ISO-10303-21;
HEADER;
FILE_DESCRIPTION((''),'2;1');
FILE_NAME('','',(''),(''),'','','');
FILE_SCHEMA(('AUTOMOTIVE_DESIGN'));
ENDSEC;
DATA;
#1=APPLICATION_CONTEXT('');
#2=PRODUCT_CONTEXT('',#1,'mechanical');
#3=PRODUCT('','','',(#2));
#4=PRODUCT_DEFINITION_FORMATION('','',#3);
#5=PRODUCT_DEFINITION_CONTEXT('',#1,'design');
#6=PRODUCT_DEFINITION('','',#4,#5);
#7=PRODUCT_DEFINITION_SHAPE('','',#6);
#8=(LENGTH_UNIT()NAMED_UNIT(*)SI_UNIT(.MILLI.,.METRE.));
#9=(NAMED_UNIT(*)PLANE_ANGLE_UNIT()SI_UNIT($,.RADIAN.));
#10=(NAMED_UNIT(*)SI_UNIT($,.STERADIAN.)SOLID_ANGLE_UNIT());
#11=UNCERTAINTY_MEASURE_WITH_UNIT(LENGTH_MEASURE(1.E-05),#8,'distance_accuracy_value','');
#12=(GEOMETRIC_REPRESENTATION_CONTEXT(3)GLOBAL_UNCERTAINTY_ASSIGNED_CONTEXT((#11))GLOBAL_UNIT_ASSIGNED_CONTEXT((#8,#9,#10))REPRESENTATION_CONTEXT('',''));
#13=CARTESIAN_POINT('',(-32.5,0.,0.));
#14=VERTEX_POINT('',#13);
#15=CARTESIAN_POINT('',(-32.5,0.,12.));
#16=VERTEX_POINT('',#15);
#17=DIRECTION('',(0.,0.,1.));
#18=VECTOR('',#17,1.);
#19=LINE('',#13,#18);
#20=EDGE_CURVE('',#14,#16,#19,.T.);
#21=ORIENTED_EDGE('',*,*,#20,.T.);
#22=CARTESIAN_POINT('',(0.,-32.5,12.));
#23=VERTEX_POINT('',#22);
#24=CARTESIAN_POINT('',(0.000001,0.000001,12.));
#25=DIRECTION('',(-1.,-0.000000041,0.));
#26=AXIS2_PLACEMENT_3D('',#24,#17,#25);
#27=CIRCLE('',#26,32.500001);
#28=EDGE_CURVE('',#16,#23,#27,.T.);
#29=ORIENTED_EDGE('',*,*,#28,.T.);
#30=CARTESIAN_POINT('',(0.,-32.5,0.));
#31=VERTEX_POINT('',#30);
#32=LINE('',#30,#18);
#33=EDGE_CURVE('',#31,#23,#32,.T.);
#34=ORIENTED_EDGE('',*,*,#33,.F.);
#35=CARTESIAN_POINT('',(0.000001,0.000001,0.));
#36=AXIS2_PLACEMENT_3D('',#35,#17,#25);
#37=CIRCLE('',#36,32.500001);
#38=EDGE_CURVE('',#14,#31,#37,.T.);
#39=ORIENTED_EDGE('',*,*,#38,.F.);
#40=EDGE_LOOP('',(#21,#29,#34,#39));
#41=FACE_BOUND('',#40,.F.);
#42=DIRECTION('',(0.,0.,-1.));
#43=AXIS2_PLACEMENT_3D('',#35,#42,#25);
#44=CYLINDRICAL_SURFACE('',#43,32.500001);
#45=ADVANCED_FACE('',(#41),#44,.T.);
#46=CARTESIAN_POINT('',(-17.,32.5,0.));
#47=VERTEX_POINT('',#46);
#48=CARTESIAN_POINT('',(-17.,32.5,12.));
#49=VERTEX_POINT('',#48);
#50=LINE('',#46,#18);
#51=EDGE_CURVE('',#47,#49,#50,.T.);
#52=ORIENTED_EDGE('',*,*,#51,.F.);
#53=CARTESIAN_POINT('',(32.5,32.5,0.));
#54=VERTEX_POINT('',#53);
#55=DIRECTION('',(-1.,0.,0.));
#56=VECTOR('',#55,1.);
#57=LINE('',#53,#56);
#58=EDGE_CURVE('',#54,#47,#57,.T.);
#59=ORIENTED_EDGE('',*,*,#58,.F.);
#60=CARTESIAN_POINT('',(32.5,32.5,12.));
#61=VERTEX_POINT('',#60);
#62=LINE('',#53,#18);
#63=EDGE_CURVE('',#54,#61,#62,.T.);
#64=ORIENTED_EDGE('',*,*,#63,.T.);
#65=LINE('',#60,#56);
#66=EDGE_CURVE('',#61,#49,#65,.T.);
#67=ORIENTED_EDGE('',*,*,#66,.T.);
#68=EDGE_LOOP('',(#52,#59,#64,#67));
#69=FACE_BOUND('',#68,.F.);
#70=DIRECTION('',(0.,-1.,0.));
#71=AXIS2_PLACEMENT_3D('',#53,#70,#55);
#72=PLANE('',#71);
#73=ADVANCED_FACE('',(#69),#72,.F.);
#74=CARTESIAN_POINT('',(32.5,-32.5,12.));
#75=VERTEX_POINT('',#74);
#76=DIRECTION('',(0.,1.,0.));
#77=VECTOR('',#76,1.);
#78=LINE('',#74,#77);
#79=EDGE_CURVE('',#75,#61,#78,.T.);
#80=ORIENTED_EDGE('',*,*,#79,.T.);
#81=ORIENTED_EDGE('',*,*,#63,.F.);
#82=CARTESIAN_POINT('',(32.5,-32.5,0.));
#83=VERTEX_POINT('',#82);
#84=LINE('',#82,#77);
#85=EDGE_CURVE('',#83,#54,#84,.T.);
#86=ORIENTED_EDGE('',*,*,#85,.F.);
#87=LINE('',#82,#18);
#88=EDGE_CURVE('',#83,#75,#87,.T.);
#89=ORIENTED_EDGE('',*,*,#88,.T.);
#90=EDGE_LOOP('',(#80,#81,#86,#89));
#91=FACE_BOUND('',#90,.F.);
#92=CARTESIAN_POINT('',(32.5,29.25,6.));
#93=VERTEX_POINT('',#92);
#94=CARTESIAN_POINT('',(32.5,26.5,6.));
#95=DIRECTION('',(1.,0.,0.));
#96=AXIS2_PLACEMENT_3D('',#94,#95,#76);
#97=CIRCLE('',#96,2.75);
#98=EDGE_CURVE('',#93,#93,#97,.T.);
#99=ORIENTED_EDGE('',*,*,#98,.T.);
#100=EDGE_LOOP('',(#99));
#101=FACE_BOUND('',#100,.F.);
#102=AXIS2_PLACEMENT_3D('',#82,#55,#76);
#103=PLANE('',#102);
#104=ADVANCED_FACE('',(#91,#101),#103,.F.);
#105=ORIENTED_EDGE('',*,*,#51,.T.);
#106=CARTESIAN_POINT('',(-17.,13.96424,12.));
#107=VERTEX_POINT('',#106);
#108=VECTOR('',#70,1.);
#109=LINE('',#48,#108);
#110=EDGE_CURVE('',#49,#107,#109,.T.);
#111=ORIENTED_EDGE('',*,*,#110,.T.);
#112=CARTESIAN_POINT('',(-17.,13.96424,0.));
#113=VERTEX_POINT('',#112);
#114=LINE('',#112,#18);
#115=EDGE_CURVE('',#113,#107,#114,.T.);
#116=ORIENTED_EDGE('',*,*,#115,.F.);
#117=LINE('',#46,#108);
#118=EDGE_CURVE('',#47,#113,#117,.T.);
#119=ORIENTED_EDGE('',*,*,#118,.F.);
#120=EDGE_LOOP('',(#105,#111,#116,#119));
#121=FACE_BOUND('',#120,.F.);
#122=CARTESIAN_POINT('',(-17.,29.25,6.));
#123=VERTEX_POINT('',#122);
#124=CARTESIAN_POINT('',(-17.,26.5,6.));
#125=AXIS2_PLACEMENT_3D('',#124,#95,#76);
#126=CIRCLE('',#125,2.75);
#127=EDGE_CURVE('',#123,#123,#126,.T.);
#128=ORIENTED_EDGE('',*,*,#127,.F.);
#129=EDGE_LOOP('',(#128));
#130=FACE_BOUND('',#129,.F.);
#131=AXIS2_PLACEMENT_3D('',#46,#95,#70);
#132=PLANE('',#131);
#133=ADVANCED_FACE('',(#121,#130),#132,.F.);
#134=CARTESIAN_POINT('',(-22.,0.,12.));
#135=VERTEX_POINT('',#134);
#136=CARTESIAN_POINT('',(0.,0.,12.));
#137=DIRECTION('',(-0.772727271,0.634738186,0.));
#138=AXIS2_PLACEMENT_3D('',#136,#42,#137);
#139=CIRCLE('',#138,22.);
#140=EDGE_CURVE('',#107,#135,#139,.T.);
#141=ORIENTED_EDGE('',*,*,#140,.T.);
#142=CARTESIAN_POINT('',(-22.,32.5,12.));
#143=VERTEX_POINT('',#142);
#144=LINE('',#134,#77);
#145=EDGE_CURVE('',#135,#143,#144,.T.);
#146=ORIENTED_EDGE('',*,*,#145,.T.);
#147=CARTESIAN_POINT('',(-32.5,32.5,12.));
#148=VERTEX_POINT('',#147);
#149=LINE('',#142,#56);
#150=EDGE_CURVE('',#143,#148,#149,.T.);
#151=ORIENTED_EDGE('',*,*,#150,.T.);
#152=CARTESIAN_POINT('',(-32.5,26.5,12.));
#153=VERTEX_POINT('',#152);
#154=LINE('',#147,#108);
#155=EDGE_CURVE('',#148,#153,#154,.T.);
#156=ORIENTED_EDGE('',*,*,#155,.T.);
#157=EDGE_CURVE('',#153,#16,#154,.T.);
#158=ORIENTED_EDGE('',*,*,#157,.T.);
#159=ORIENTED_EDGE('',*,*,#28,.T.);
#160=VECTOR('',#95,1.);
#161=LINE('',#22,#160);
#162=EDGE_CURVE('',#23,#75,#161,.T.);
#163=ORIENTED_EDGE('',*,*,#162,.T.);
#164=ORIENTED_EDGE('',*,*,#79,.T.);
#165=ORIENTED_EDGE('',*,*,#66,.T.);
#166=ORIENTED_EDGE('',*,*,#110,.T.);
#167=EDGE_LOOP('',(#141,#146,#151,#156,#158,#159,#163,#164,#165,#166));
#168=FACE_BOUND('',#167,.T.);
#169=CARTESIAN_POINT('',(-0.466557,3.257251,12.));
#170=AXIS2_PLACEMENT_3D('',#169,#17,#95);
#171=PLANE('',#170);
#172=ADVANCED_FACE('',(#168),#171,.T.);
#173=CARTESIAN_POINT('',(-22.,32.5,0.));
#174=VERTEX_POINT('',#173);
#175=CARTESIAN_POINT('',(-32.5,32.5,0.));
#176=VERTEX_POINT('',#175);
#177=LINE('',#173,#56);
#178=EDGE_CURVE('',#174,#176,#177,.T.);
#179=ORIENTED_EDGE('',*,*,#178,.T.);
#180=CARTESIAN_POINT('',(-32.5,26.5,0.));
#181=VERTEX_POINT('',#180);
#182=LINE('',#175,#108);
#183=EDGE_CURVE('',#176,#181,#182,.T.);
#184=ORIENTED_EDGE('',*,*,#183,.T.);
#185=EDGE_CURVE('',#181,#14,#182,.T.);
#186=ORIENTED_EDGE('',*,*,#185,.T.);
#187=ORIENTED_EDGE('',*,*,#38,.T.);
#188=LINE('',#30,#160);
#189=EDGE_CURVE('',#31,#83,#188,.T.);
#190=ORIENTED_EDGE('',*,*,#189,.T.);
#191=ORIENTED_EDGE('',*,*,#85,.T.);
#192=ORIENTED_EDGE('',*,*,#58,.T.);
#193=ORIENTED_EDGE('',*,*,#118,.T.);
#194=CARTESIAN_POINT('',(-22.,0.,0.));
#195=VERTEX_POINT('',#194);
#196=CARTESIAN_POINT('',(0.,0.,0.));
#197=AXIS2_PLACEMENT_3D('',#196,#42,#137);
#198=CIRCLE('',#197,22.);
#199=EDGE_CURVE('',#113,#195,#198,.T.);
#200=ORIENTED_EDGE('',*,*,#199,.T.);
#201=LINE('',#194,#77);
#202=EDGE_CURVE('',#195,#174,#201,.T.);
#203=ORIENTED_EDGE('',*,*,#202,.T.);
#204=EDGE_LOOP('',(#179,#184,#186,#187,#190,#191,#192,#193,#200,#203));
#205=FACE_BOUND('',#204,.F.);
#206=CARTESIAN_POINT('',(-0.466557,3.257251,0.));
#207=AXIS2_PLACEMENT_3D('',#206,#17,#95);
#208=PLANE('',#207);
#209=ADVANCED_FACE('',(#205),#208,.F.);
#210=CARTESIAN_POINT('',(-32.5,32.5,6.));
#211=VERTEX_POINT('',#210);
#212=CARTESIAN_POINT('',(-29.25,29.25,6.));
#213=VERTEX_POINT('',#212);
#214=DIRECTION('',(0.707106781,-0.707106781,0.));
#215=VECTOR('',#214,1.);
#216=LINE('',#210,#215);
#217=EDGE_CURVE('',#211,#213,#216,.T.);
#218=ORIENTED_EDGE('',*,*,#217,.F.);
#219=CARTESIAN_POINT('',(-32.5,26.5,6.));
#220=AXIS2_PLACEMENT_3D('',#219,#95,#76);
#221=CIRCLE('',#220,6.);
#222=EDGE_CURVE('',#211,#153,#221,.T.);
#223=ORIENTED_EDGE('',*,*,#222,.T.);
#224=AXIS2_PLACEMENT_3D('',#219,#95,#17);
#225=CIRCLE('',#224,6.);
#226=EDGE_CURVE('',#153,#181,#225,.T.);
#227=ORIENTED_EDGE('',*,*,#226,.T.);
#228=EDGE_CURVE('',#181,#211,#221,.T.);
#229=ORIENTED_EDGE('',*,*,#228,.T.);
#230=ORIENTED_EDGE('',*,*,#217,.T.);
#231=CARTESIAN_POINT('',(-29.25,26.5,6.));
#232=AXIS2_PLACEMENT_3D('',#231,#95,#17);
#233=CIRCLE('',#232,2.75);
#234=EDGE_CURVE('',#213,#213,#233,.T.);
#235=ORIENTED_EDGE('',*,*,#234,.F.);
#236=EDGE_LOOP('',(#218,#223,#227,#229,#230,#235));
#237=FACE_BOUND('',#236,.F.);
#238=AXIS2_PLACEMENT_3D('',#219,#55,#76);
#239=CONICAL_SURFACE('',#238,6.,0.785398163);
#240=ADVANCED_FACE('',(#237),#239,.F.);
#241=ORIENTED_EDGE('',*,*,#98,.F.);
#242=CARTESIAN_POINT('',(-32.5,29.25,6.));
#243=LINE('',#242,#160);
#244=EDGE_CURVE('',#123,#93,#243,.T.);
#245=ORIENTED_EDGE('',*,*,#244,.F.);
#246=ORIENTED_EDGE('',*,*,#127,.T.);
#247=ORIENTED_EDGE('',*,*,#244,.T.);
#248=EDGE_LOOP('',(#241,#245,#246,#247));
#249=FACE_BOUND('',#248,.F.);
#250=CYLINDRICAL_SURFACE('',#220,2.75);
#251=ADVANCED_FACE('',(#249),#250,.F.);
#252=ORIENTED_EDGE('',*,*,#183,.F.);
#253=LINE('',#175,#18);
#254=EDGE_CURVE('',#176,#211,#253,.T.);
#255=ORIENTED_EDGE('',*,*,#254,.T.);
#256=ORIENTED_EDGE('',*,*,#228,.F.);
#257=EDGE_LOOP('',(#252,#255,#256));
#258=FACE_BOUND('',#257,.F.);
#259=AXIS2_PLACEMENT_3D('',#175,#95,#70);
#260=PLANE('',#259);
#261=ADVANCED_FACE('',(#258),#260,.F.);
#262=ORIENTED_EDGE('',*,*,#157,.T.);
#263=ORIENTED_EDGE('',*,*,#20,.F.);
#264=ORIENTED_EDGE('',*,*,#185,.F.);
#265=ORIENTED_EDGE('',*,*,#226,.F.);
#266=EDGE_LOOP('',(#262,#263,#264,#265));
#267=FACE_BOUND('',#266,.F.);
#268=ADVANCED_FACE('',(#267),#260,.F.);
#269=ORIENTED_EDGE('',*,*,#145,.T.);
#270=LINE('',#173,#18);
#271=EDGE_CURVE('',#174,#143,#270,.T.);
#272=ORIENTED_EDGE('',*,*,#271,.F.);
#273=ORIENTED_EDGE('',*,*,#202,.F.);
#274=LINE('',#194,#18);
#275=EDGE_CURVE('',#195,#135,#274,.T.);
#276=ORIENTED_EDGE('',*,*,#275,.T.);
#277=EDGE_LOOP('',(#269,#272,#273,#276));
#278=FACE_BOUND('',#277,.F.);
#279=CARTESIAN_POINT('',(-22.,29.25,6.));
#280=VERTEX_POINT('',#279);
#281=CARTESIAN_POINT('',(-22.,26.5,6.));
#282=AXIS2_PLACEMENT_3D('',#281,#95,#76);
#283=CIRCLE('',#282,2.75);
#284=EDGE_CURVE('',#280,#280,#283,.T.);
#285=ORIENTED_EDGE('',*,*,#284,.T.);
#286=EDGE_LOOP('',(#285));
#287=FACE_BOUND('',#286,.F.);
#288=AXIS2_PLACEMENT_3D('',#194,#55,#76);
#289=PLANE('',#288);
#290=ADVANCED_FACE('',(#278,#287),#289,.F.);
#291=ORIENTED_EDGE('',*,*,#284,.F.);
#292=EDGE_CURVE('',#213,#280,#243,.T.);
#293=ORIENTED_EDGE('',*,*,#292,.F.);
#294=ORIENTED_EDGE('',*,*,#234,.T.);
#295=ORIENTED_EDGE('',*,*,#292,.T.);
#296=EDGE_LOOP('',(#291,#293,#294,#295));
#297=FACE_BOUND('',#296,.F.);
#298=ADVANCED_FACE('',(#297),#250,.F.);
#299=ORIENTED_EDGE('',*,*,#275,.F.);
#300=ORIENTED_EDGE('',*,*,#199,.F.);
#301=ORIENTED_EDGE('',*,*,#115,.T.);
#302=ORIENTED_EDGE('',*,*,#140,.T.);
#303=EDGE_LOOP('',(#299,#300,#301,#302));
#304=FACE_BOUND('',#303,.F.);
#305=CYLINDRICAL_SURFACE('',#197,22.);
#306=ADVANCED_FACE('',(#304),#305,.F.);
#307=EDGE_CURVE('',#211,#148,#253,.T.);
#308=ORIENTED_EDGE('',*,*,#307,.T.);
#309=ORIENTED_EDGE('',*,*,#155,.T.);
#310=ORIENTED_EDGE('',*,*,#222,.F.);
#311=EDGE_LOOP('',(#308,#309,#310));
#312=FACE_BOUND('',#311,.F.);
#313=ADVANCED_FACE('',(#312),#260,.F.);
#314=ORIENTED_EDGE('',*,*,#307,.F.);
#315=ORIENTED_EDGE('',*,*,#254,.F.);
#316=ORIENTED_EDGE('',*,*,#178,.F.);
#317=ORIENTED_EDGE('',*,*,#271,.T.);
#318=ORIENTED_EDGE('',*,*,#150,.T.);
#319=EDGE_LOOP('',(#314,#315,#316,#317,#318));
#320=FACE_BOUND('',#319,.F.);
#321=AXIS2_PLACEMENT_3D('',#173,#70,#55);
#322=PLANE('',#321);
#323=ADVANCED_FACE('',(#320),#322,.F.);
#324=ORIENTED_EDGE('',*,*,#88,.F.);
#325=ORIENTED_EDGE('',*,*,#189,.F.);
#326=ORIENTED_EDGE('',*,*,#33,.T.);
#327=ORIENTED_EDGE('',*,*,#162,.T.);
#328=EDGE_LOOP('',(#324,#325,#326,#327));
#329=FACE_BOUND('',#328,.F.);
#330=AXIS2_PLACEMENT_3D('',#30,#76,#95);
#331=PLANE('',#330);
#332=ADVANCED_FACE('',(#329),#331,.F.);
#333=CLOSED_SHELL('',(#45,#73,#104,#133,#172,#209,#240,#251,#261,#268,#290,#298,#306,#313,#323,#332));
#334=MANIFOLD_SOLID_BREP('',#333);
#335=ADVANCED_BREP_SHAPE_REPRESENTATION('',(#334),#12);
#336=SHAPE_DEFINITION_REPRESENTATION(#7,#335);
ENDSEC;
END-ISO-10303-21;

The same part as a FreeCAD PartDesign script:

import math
import FreeCAD as App
import Part
import Sketcher
from FreeCAD import Vector
Q = App.Units.Quantity

doc = App.newDocument("Part")
body = doc.addObject("PartDesign::Body", "Body")

sketch1 = body.newObject("Sketcher::SketchObject", "Sketch")
sketch1.AttachmentSupport = (doc.getObject("XY_Plane"), [""])
sketch1.MapMode = "FlatFace"
sketch1.addGeometry([
    Part.ArcOfCircle(Part.Circle(Vector(0, 0, 0), Vector(0, 0, 1), 22), math.radians(-180), math.radians(140.599431)),
    Part.LineSegment(Vector(-22, 0, 0), Vector(-22, 32.5, 0)),
    Part.LineSegment(Vector(-22, 32.5, 0), Vector(-32.5, 32.5, 0)),
    Part.LineSegment(Vector(-32.5, 32.5, 0), Vector(-32.5, 0, 0)),
    Part.ArcOfCircle(Part.Circle(Vector(0.000001, 0.000001, 0), Vector(0, 0, 1), 32.500001), math.radians(-179.999998), math.radians(-90.000002)),
    Part.LineSegment(Vector(0, -32.5, 0), Vector(32.5, -32.5, 0)),
    Part.LineSegment(Vector(32.5, -32.5, 0), Vector(32.5, 32.5, 0)),
    Part.LineSegment(Vector(32.5, 32.5, 0), Vector(-17, 32.5, 0)),
    Part.LineSegment(Vector(-17, 32.5, 0), Vector(-17, 13.96424, 0)),
], False)
sketch1.addConstraint([
    Sketcher.Constraint("Tangent", 0, 1, 1, 1),
    Sketcher.Constraint("Coincident", 1, 2, 2, 1),
    Sketcher.Constraint("Coincident", 2, 2, 3, 1),
    Sketcher.Constraint("Tangent", 3, 2, 4, 1),
    Sketcher.Constraint("Tangent", 4, 2, 5, 1),
    Sketcher.Constraint("Coincident", 5, 2, 6, 1),
    Sketcher.Constraint("Coincident", 6, 2, 7, 1),
    Sketcher.Constraint("Coincident", 7, 2, 8, 1),
    Sketcher.Constraint("Coincident", 8, 2, 0, 2),
    Sketcher.Constraint("Vertical", 1),
    Sketcher.Constraint("Horizontal", 2),
    Sketcher.Constraint("Vertical", 3),
    Sketcher.Constraint("Horizontal", 5),
    Sketcher.Constraint("Vertical", 6),
    Sketcher.Constraint("Horizontal", 7),
    Sketcher.Constraint("Vertical", 8),
    Sketcher.Constraint("Coincident", 0, 3, -1, 1),
    Sketcher.Constraint("Coincident", 4, 3, -1, 1),
    Sketcher.Constraint("Symmetric", 2, 2, 5, 2, -1, 1),
    Sketcher.Constraint("Horizontal", 2, 2, 6, 2),
    Sketcher.Constraint("Radius", 0, Q("22 mm")),
    Sketcher.Constraint("Radius", 4, Q("32.500001 mm")),
    Sketcher.Constraint("DistanceX", 7, 2, 7, 1, Q("49.5 mm")),
])
pad1 = body.newObject("PartDesign::Pad", "Pad")
pad1.Profile = sketch1
pad1.Length = 12

sketch2 = body.newObject("Sketcher::SketchObject", "Sketch001")
sketch2.AttachmentSupport = (doc.getObject("YZ_Plane"), [""])
sketch2.MapMode = "FlatFace"
sketch2.AttachmentOffset = App.Placement(Vector(0, 0, -32.5), App.Rotation())
sketch2.addGeometry(Part.Circle(Vector(26.5, 6, 0), Vector(0, 0, 1), 2.75), False)
sketch2.addConstraint([
    Sketcher.Constraint("Diameter", 0, Q("5.5 mm")),
    Sketcher.Constraint("DistanceY", -1, 1, 0, 3, Q("6 mm")),
    Sketcher.Constraint("DistanceX", -1, 1, 0, 3, Q("26.5 mm")),
])
doc.recompute()
hole = body.newObject("PartDesign::Hole", "Hole")
hole.Profile = sketch2
hole.ThreadType = "None"
hole.Diameter = 5.5
hole.DepthType = "ThroughAll"
hole.HoleCutType = "Countersink"
hole.HoleCutDiameter = 12
hole.HoleCutCountersinkAngle = 90
hole.Reversed = True

doc.recompute()
